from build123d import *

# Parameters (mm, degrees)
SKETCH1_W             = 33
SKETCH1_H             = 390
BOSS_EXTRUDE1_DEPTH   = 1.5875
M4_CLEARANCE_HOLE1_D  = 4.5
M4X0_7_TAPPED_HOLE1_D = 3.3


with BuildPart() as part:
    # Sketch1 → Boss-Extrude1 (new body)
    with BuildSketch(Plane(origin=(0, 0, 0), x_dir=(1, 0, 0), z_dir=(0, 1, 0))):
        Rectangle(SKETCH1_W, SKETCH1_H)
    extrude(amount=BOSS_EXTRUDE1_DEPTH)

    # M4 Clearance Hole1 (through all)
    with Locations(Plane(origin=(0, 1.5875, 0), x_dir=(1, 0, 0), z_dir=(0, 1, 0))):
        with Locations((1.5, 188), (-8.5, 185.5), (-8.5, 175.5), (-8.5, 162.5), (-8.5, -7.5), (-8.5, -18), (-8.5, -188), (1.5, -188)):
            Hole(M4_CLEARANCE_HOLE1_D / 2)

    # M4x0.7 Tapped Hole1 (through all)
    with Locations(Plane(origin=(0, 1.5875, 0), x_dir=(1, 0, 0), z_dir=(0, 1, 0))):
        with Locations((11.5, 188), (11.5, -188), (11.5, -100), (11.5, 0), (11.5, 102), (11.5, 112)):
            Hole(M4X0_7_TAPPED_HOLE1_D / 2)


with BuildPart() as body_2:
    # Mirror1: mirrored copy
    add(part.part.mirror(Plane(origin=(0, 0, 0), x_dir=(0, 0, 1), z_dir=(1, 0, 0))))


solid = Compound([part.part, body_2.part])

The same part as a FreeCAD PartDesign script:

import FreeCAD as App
import Part
import Sketcher
from FreeCAD import Vector


def add_polygon(sketch, points):
    """Adds a closed chain of lines whose ends are joined by coincident constraints."""
    first, n = sketch.GeometryCount, len(points)
    for a, b in zip(points, points[1:] + points[:1]):
        sketch.addGeometry(Part.LineSegment(App.Vector(*a, 0), App.Vector(*b, 0)), False)
    for i in range(n):
        sketch.addConstraint(Sketcher.Constraint("Coincident", first + i, 2, first + (i + 1) % n, 1))

doc = App.newDocument("Part")
body = doc.addObject("PartDesign::Body", "Body")

sketch1 = doc.addObject("Sketcher::SketchObject", "Sketch")
body.addObject(sketch1)
sketch1.AttachmentSupport = (doc.XZ_Plane, [""])
sketch1.MapMode = "FlatFace"
add_polygon(sketch1, [(-16, -195), (-16, 195), (16, 195), (16, -195)])
sketch1.addConstraint([
    Sketcher.Constraint("Vertical", 0),
    Sketcher.Constraint("Horizontal", 1),
    Sketcher.Constraint("Vertical", 2),
    Sketcher.Constraint("Horizontal", 3),
    Sketcher.Constraint("Symmetric", 0, 2, 2, 2, -1, 1),
    Sketcher.Constraint("DistanceX", 1, 1, 1, 2, 33.0),
    Sketcher.Constraint("DistanceY", 0, 1, 0, 2, 390.0),
])
pad1 = doc.addObject("PartDesign::Pad", "Pad")
body.addObject(pad1)
pad1.Profile = sketch1
pad1.Length = 1.5875
pad1.Reversed = True

sketch2 = doc.addObject("Sketcher::SketchObject", "Sketch001")
body.addObject(sketch2)
sketch2.AttachmentSupport = (doc.XZ_Plane, [""])
sketch2.MapMode = "FlatFace"
sketch2.AttachmentOffset = App.Placement(Vector(0, 0, -1.5875), App.Rotation())
sketch2.addGeometry([
    Part.Circle(Vector(1.5, -188, 0), Vector(0, 0, 1), 2.2),
    Part.Circle(Vector(-8.5, -185.5, 0), Vector(0, 0, 1), 2.2),
    Part.Circle(Vector(-8.5, -175.5, 0), Vector(0, 0, 1), 2.2),
    Part.Circle(Vector(-8.5, -162.5, 0), Vector(0, 0, 1), 2.2),
    Part.Circle(Vector(-8.5, 7.5, 0), Vector(0, 0, 1), 2.2),
    Part.Circle(Vector(-8.5, 18, 0), Vector(0, 0, 1), 2.2),
    Part.Circle(Vector(-8.5, 188, 0), Vector(0, 0, 1), 2.2),
    Part.Circle(Vector(1.5, 188, 0), Vector(0, 0, 1), 2.2),
], False)
sketch2.addConstraint([
    Sketcher.Constraint("Equal", 0, 1),
    Sketcher.Constraint("Equal", 1, 2),
    Sketcher.Constraint("Equal", 2, 3),
    Sketcher.Constraint("Equal", 3, 4),
    Sketcher.Constraint("Equal", 4, 5),
    Sketcher.Constraint("Equal", 5, 6),
    Sketcher.Constraint("Equal", 6, 7),
    Sketcher.Constraint("Symmetric", 0, 3, 7, 3, -1),
    Sketcher.Constraint("Horizontal", 6, 3, 7, 3),
    Sketcher.Constraint("Vertical", 1, 3, 2, 3),
    Sketcher.Constraint("Vertical", 2, 3, 3, 3),
    Sketcher.Constraint("Vertical", 3, 3, 4, 3),
    Sketcher.Constraint("Vertical", 4, 3, 5, 3),
    Sketcher.Constraint("Vertical", 5, 3, 6, 3),
    Sketcher.Constraint("Diameter", 0, 4.5),
    Sketcher.Constraint("DistanceY", 0, 3, -1, 1, 188.0),
    Sketcher.Constraint("DistanceY", -1, 1, 5, 3, 18.0),
    Sketcher.Constraint("DistanceX", 1, 3, 0, 3, 10.0),
    Sketcher.Constraint("DistanceY", 1, 3, 2, 3, 10.0),
    Sketcher.Constraint("DistanceY", 2, 3, 3, 3, 13.0),
    Sketcher.Constraint("DistanceY", 3, 3, 4, 3, 170.0),
    Sketcher.Constraint("DistanceX", -1, 1, 0, 3, 1.5),
    Sketcher.Constraint("DistanceY", 1, 3, -1, 1, 185.5),
])
doc.recompute()
hole = doc.addObject("PartDesign::Hole", "Hole")
body.addObject(hole)
hole.Profile = sketch2
hole.ThreadType = "None"
hole.Diameter = 4.5
hole.DepthType = "ThroughAll"
hole.Reversed = True

sketch3 = doc.addObject("Sketcher::SketchObject", "Sketch002")
body.addObject(sketch3)
sketch3.AttachmentSupport = (doc.XZ_Plane, [""])
sketch3.MapMode = "FlatFace"
sketch3.AttachmentOffset = App.Placement(Vector(0, 0, -1.5875), App.Rotation())
sketch3.addGeometry([
    Part.Circle(Vector(11.5, -188, 0), Vector(0, 0, 1), 1.6),
    Part.Circle(Vector(11.5, 188, 0), Vector(0, 0, 1), 1.6),
    Part.Circle(Vector(11.5, 100, 0), Vector(0, 0, 1), 1.6),
    Part.Circle(Vector(11.5, 0, 0), Vector(0, 0, 1), 1.6),
    Part.Circle(Vector(11.5, -102, 0), Vector(0, 0, 1), 1.6),
    Part.Circle(Vector(11.5, -112, 0), Vector(0, 0, 1), 1.6),
], False)
sketch3.addConstraint([
    Sketcher.Constraint("Equal", 0, 1),
    Sketcher.Constraint("Equal", 1, 2),
    Sketcher.Constraint("Equal", 2, 3),
    Sketcher.Constraint("Equal", 3, 4),
    Sketcher.Constraint("Equal", 4, 5),
    Sketcher.Constraint("Symmetric", 0, 3, 1, 3, -1),
    Sketcher.Constraint("PointOnObject", 3, 3, -1),
    Sketcher.Constraint("Vertical", 1, 3, 2, 3),
    Sketcher.Constraint("Vertical", 2, 3, 3, 3),
    Sketcher.Constraint("Vertical", 3, 3, 4, 3),
    Sketcher.Constraint("Vertical", 4, 3, 5, 3),
    Sketcher.Constraint("Diameter", 0, 3.3),
    Sketcher.Constraint("DistanceY", 0, 3, -1, 1, 188.0),
    Sketcher.Constraint("DistanceY", -1, 1, 2, 3, 100.0),
    Sketcher.Constraint("DistanceY", 4, 3, -1, 1, 102.0),
    Sketcher.Constraint("DistanceY", 5, 3, -1, 1, 112.0),
    Sketcher.Constraint("DistanceX", -1, 1, 0, 3, 11.5),
])
doc.recompute()
hole2 = doc.addObject("PartDesign::Hole", "Hole001")
body.addObject(hole2)
hole2.Profile = sketch3
hole2.ThreadType = "None"
hole2.Diameter = 3.3
hole2.DepthType = "ThroughAll"
hole2.Reversed = True
body2 = doc.addObject("PartDesign::Body", "Body001")
doc.recompute()

mirroring = doc.addObject("Part::Mirroring", "Mirroring")
mirroring.Source = body
mirroring.Base = Vector(0, 0, 0)
mirroring.Normal = Vector(1, 0, 0)
body2.BaseFeature = mirroring
doc.recompute()
mirroring.Visibility = False

doc.recompute()
